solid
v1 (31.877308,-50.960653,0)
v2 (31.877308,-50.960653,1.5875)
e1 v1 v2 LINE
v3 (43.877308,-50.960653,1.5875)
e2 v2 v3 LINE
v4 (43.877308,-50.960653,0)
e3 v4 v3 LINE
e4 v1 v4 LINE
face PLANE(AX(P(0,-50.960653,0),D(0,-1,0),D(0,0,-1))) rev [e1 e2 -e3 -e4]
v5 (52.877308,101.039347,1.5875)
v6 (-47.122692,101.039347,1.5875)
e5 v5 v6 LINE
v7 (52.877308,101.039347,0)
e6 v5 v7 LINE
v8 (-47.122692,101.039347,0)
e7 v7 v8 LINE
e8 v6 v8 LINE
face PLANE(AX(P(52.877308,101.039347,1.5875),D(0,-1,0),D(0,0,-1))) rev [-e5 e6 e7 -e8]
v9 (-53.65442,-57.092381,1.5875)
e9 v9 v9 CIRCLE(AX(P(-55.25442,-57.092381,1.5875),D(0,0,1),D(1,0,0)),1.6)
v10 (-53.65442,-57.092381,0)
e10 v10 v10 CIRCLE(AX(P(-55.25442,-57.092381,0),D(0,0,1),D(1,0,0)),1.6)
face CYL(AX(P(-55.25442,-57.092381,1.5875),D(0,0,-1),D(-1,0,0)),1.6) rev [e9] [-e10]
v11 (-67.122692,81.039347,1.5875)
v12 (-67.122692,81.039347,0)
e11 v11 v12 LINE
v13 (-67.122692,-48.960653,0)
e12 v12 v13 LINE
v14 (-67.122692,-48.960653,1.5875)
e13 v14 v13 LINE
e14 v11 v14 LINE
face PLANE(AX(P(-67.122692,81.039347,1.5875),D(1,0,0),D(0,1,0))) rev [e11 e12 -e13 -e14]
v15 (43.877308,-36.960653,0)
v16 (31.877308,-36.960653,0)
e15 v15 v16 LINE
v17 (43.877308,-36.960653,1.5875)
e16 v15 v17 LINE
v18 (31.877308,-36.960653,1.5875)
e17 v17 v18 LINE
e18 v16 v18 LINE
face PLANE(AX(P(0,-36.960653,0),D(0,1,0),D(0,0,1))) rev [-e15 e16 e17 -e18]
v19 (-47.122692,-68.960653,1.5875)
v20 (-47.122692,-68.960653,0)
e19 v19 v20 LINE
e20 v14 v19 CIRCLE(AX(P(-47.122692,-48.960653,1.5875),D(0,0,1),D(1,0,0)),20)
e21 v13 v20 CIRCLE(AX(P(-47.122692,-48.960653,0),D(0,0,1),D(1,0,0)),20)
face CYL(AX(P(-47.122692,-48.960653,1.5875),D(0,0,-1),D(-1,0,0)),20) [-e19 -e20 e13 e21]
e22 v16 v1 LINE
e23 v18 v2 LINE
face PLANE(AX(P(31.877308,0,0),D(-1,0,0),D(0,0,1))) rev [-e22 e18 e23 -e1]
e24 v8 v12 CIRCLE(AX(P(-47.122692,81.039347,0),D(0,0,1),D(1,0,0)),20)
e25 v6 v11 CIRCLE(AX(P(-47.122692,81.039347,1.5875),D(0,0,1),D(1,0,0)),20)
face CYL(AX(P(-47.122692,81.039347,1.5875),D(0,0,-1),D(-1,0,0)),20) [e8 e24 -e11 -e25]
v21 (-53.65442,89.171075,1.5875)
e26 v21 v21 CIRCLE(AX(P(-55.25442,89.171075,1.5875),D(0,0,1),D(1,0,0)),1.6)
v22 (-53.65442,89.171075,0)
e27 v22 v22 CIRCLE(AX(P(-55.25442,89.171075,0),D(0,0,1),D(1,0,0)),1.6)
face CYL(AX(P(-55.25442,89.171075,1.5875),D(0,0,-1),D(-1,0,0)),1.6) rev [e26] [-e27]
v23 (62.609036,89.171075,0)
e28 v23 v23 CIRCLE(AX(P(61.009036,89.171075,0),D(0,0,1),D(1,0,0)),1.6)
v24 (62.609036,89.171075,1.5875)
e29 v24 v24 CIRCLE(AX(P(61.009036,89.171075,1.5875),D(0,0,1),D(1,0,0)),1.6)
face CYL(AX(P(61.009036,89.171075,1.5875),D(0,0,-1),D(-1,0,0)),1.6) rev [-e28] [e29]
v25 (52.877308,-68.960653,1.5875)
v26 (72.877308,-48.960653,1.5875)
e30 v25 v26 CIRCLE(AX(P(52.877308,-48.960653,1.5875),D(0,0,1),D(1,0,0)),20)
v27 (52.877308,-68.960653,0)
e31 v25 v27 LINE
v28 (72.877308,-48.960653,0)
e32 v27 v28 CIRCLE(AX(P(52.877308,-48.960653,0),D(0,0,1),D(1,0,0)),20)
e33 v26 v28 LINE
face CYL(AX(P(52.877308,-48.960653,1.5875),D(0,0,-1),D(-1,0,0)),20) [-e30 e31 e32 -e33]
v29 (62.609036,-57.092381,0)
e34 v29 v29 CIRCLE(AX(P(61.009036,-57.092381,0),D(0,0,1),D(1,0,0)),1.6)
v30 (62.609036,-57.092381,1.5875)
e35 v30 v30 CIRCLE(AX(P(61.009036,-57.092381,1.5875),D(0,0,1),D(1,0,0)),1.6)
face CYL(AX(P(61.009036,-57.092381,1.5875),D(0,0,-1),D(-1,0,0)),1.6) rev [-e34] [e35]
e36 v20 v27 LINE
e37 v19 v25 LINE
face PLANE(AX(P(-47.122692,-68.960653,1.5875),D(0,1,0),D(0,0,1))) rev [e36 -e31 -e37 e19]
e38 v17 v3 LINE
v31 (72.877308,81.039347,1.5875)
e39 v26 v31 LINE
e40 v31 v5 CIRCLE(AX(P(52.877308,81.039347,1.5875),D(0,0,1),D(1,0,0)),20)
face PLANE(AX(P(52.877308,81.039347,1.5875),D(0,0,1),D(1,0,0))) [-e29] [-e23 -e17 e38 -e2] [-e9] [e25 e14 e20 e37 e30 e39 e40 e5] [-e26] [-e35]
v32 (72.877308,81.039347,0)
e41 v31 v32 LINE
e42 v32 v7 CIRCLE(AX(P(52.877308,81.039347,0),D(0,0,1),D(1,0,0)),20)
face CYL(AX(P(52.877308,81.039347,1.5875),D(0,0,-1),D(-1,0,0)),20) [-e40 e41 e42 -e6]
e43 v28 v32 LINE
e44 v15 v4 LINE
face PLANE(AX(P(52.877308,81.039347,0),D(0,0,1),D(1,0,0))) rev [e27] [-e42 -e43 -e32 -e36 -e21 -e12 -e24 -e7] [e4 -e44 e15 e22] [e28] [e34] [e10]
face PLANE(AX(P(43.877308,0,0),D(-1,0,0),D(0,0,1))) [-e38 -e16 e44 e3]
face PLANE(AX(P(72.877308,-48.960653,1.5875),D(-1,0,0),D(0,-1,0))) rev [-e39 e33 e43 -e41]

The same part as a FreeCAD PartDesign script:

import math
import FreeCAD as App
import Part
import Sketcher
Q = App.Units.Quantity

doc = App.newDocument("Part")
body = doc.addObject("PartDesign::Body", "Body")

# Sketch on XY plane
sketch1 = body.newObject("Sketcher::SketchObject", "Sketch")
sketch1.AttachmentSupport = (doc.getObject("XY_Plane"), [""])
sketch1.MapMode = "FlatFace"
sketch1.addGeometry(Part.LineSegment(App.Vector(52.9, 101, 0), App.Vector(-47.1, 101, 0)), False)
sketch1.addGeometry(Part.ArcOfCircle(Part.Circle(App.Vector(-47.1, 81, 0), App.Vector(0, 0, 1), 20), math.radians(90), math.radians(180)), False)
sketch1.addGeometry(Part.LineSegment(App.Vector(-67.1, 81, 0), App.Vector(-67.1, -49, 0)), False)
sketch1.addGeometry(Part.ArcOfCircle(Part.Circle(App.Vector(-47.1, -49, 0), App.Vector(0, 0, 1), 20), math.radians(-180), math.radians(-90)), False)
sketch1.addGeometry(Part.LineSegment(App.Vector(-47.1, -69, 0), App.Vector(52.9, -69, 0)), False)
sketch1.addGeometry(Part.ArcOfCircle(Part.Circle(App.Vector(52.9, -49, 0), App.Vector(0, 0, 1), 20), math.radians(-90), math.radians(0)), False)
sketch1.addGeometry(Part.LineSegment(App.Vector(72.9, -49, 0), App.Vector(72.9, 81, 0)), False)
sketch1.addGeometry(Part.ArcOfCircle(Part.Circle(App.Vector(52.9, 81, 0), App.Vector(0, 0, 1), 20), math.radians(0), math.radians(90)), False)
sketch1.addGeometry(Part.Circle(App.Vector(-55.3, -57.1, 0), App.Vector(0, 0, 1), 1.6), False)
sketch1.addGeometry(Part.Circle(App.Vector(61, -57.1, 0), App.Vector(0, 0, 1), 1.6), False)
sketch1.addGeometry(Part.Circle(App.Vector(-55.3, 89.2, 0), App.Vector(0, 0, 1), 1.6), False)
sketch1.addGeometry(Part.Circle(App.Vector(61, 89.2, 0), App.Vector(0, 0, 1), 1.6), False)
sketch1.addConstraint(Sketcher.Constraint("Tangent", 0, 2, 1, 1))
sketch1.addConstraint(Sketcher.Constraint("Tangent", 1, 2, 2, 1))
sketch1.addConstraint(Sketcher.Constraint("Tangent", 2, 2, 3, 1))
sketch1.addConstraint(Sketcher.Constraint("Tangent", 3, 2, 4, 1))
sketch1.addConstraint(Sketcher.Constraint("Tangent", 4, 2, 5, 1))
sketch1.addConstraint(Sketcher.Constraint("Tangent", 5, 2, 6, 1))
sketch1.addConstraint(Sketcher.Constraint("Tangent", 6, 2, 7, 1))
sketch1.addConstraint(Sketcher.Constraint("Tangent", 7, 2, 0, 1))
sketch1.addConstraint(Sketcher.Constraint("Horizontal", 0))
sketch1.addConstraint(Sketcher.Constraint("Vertical", 2))
sketch1.addConstraint(Sketcher.Constraint("Horizontal", 4))
sketch1.addConstraint(Sketcher.Constraint("Vertical", 6))
sketch1.addConstraint(Sketcher.Constraint("Equal", 1, 3))
sketch1.addConstraint(Sketcher.Constraint("Equal", 3, 5))
sketch1.addConstraint(Sketcher.Constraint("Equal", 5, 7))
sketch1.addConstraint(Sketcher.Constraint("Equal", 8, 9))
sketch1.addConstraint(Sketcher.Constraint("Equal", 9, 10))
sketch1.addConstraint(Sketcher.Constraint("Equal", 10, 11))
sketch1.addConstraint(Sketcher.Constraint("Horizontal", 8, 3, 9, 3))
sketch1.addConstraint(Sketcher.Constraint("Horizontal", 10, 3, 11, 3))
sketch1.addConstraint(Sketcher.Constraint("Vertical", 8, 3, 10, 3))
sketch1.addConstraint(Sketcher.Constraint("Vertical", 9, 3, 11, 3))
sketch1.addConstraint(Sketcher.Constraint("Radius", 1, Q("20 mm")))
sketch1.addConstraint(Sketcher.Constraint("Diameter", 8, Q("3.2 mm")))
sketch1.addConstraint(Sketcher.Constraint("DistanceX", 0, 2, 0, 1, Q("100 mm")))
sketch1.addConstraint(Sketcher.Constraint("DistanceY", 2, 2, 2, 1, Q("130 mm")))
sketch1.addConstraint(Sketcher.Constraint("DistanceX", 1, 3, -1, 1, Q("47.122692 mm")))
sketch1.addConstraint(Sketcher.Constraint("DistanceX", 8, 3, -1, 1, Q("55.25442 mm")))
sketch1.addConstraint(Sketcher.Constraint("DistanceY", 8, 3, -1, 1, Q("57.092381 mm")))
sketch1.addConstraint(Sketcher.Constraint("DistanceY", -1, 1, 1, 3, Q("81.039347 mm")))
sketch1.addConstraint(Sketcher.Constraint("DistanceX", -1, 1, 9, 3, Q("61.009036 mm")))
sketch1.addConstraint(Sketcher.Constraint("DistanceY", -1, 1, 10, 3, Q("89.171075 mm")))
pad1 = body.newObject("PartDesign::Pad", "Pad")
pad1.Profile = sketch1
pad1.Length = 1.5875

# Sketch on XY plane
sketch2 = body.newObject("Sketcher::SketchObject", "Sketch001")
sketch2.AttachmentSupport = (doc.getObject("XY_Plane"), [""])
sketch2.MapMode = "FlatFace"
sketch2.AttachmentOffset = App.Placement(App.Vector(0, 0, 1.5875), App.Rotation())
sketch2.addGeometry(Part.LineSegment(App.Vector(32, -37, 0), App.Vector(32, -51, 0)), False)
sketch2.addGeometry(Part.LineSegment(App.Vector(32, -51, 0), App.Vector(44, -51, 0)), False)
sketch2.addGeometry(Part.LineSegment(App.Vector(44, -51, 0), App.Vector(44, -37, 0)), False)
sketch2.addGeometry(Part.LineSegment(App.Vector(44, -37, 0), App.Vector(32, -37, 0)), False)
sketch2.addConstraint(Sketcher.Constraint("Coincident", 0, 2, 1, 1))
sketch2.addConstraint(Sketcher.Constraint("Coincident", 1, 2, 2, 1))
sketch2.addConstraint(Sketcher.Constraint("Coincident", 2, 2, 3, 1))
sketch2.addConstraint(Sketcher.Constraint("Coincident", 3, 2, 0, 1))
sketch2.addConstraint(Sketcher.Constraint("Vertical", 0))
sketch2.addConstraint(Sketcher.Constraint("Horizontal", 1))
sketch2.addConstraint(Sketcher.Constraint("Vertical", 2))
sketch2.addConstraint(Sketcher.Constraint("Horizontal", 3))
sketch2.addConstraint(Sketcher.Constraint("DistanceX", 1, 1, 1, 2, Q("12 mm")))
sketch2.addConstraint(Sketcher.Constraint("DistanceY", 0, 2, 0, 1, Q("14 mm")))
sketch2.addConstraint(Sketcher.Constraint("DistanceX", -1, 1, 0, 2, Q("31.877308 mm")))
sketch2.addConstraint(Sketcher.Constraint("DistanceY", 0, 2, -1, 1, Q("50.960653 mm")))
pocket1 = body.newObject("PartDesign::Pocket", "Pocket")
pocket1.Profile = sketch2
pocket1.Type = "ThroughAll"

doc.recompute()
